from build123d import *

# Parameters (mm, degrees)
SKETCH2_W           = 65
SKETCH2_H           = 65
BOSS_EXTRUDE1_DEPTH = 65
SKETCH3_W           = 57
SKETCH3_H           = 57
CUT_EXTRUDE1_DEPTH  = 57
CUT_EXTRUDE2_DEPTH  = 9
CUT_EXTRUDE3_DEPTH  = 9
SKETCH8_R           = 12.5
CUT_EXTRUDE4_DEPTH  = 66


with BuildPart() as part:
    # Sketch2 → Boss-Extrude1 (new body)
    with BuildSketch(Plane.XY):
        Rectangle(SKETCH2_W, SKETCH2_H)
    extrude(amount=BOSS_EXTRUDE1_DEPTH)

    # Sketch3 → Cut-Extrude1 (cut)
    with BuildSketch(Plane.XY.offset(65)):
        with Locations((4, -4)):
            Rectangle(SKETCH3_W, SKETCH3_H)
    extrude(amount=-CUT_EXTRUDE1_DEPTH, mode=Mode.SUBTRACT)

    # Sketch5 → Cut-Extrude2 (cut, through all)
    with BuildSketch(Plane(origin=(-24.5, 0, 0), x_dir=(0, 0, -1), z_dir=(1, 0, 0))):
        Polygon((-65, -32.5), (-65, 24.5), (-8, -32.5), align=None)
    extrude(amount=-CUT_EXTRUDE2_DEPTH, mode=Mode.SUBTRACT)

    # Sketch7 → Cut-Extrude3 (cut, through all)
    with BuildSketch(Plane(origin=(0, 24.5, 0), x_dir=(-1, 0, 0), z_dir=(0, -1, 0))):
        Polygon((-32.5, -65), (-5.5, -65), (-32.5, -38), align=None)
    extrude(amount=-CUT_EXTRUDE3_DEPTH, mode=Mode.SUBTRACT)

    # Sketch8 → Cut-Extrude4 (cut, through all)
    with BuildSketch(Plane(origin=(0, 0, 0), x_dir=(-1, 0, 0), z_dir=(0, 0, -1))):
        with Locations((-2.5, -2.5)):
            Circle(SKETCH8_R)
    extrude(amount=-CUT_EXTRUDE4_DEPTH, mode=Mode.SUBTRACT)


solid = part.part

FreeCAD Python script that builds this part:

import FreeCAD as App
import Part
import Sketcher
Q = App.Units.Quantity


def add_polygon(sketch, points):
    """Adds a closed chain of lines whose ends are joined by coincident constraints."""
    first, n = sketch.GeometryCount, len(points)
    for a, b in zip(points, points[1:] + points[:1]):
        sketch.addGeometry(Part.LineSegment(App.Vector(*a, 0), App.Vector(*b, 0)), False)
    for i in range(n):
        sketch.addConstraint(Sketcher.Constraint("Coincident", first + i, 2, first + (i + 1) % n, 1))

doc = App.newDocument("Part")
body = doc.addObject("PartDesign::Body", "Body")

sketch1 = body.newObject("Sketcher::SketchObject", "Sketch")
sketch1.AttachmentSupport = (doc.getObject("XY_Plane"), [""])
sketch1.MapMode = "FlatFace"
add_polygon(sketch1, [(-32.5, 32.5), (-32.5, -32.5), (32.5, -32.5), (32.5, 32.5)])
sketch1.addConstraint([
    Sketcher.Constraint("Vertical", 0),
    Sketcher.Constraint("Horizontal", 1),
    Sketcher.Constraint("Vertical", 2),
    Sketcher.Constraint("Horizontal", 3),
    Sketcher.Constraint("Symmetric", 0, 2, 2, 2, -1, 1),
    Sketcher.Constraint("Equal", 3, 0),
    Sketcher.Constraint("DistanceX", 1, 1, 1, 2, Q("65 mm")),
])
pad1 = body.newObject("PartDesign::Pad", "Pad")
pad1.Profile = sketch1
pad1.Length = 65

sketch2 = body.newObject("Sketcher::SketchObject", "Sketch001")
sketch2.AttachmentSupport = (doc.getObject("XY_Plane"), [""])
sketch2.MapMode = "FlatFace"
sketch2.AttachmentOffset = App.Placement(App.Vector(0, 0, 65), App.Rotation())
add_polygon(sketch2, [(-24.5, 24.5), (-24.5, -32.5), (32.5, -32.5), (32.5, 24.5)])
sketch2.addConstraint([
    Sketcher.Constraint("Vertical", 0),
    Sketcher.Constraint("Horizontal", 1),
    Sketcher.Constraint("Vertical", 2),
    Sketcher.Constraint("Horizontal", 3),
    Sketcher.Constraint("Equal", 3, 0),
    Sketcher.Constraint("DistanceX", 1, 1, 1, 2, Q("57 mm")),
    Sketcher.Constraint("DistanceX", 0, 2, -1, 1, Q("24.5 mm")),
    Sketcher.Constraint("DistanceY", 0, 2, -1, 1, Q("32.5 mm")),
])
pocket1 = body.newObject("PartDesign::Pocket", "Pocket")
pocket1.Profile = sketch2
pocket1.Length = 57

sketch3 = body.newObject("Sketcher::SketchObject", "Sketch002")
sketch3.AttachmentSupport = (doc.getObject("YZ_Plane"), [""])
sketch3.MapMode = "FlatFace"
sketch3.AttachmentOffset = App.Placement(App.Vector(0, 0, -24.5), App.Rotation())
add_polygon(sketch3, [(24.5, 65), (-32.5, 65), (-32.5, 8)])
sketch3.addConstraint([
    Sketcher.Constraint("Horizontal", 0),
    Sketcher.Constraint("Vertical", 1),
    Sketcher.Constraint("Equal", 0, 1),
    Sketcher.Constraint("DistanceX", 0, 2, 0, 1, Q("57 mm")),
    Sketcher.Constraint("DistanceY", -1, 1, 0, 2, Q("65 mm")),
    Sketcher.Constraint("DistanceX", 0, 2, -1, 1, Q("32.5 mm")),
])
pocket2 = body.newObject("PartDesign::Pocket", "Pocket001")
pocket2.Profile = sketch3
pocket2.Type = "ThroughAll"

sketch4 = body.newObject("Sketcher::SketchObject", "Sketch003")
sketch4.AttachmentSupport = (doc.getObject("XZ_Plane"), [""])
sketch4.MapMode = "FlatFace"
sketch4.AttachmentOffset = App.Placement(App.Vector(0, 0, -24.5), App.Rotation())
add_polygon(sketch4, [(32.5, 65), (5.5, 65), (32.5, 38)])
sketch4.addConstraint([
    Sketcher.Constraint("Horizontal", 0),
    Sketcher.Constraint("Vertical", 2),
    Sketcher.Constraint("Equal", 0, 2),
    Sketcher.Constraint("DistanceX", 0, 2, 0, 1, Q("27 mm")),
    Sketcher.Constraint("DistanceY", -1, 1, 0, 2, Q("65 mm")),
    Sketcher.Constraint("DistanceX", -1, 1, 0, 2, Q("5.5 mm")),
])
pocket3 = body.newObject("PartDesign::Pocket", "Pocket002")
pocket3.Profile = sketch4
pocket3.Type = "ThroughAll"

sketch5 = body.newObject("Sketcher::SketchObject", "Sketch004")
sketch5.AttachmentSupport = (doc.getObject("XY_Plane"), [""])
sketch5.MapMode = "FlatFace"
sketch5.addGeometry(Part.Circle(App.Vector(2.5, -2.5, 0), App.Vector(0, 0, 1), 12.5), False)
sketch5.addConstraint([
    Sketcher.Constraint("Diameter", 0, Q("25 mm")),
    Sketcher.Constraint("DistanceX", -1, 1, 0, 3, Q("2.5 mm")),
    Sketcher.Constraint("DistanceY", 0, 3, -1, 1, Q("2.5 mm")),
])
pocket4 = body.newObject("PartDesign::Pocket", "Pocket003")
pocket4.Profile = sketch5
pocket4.Type = "ThroughAll"
pocket4.Reversed = True

doc.recompute()
